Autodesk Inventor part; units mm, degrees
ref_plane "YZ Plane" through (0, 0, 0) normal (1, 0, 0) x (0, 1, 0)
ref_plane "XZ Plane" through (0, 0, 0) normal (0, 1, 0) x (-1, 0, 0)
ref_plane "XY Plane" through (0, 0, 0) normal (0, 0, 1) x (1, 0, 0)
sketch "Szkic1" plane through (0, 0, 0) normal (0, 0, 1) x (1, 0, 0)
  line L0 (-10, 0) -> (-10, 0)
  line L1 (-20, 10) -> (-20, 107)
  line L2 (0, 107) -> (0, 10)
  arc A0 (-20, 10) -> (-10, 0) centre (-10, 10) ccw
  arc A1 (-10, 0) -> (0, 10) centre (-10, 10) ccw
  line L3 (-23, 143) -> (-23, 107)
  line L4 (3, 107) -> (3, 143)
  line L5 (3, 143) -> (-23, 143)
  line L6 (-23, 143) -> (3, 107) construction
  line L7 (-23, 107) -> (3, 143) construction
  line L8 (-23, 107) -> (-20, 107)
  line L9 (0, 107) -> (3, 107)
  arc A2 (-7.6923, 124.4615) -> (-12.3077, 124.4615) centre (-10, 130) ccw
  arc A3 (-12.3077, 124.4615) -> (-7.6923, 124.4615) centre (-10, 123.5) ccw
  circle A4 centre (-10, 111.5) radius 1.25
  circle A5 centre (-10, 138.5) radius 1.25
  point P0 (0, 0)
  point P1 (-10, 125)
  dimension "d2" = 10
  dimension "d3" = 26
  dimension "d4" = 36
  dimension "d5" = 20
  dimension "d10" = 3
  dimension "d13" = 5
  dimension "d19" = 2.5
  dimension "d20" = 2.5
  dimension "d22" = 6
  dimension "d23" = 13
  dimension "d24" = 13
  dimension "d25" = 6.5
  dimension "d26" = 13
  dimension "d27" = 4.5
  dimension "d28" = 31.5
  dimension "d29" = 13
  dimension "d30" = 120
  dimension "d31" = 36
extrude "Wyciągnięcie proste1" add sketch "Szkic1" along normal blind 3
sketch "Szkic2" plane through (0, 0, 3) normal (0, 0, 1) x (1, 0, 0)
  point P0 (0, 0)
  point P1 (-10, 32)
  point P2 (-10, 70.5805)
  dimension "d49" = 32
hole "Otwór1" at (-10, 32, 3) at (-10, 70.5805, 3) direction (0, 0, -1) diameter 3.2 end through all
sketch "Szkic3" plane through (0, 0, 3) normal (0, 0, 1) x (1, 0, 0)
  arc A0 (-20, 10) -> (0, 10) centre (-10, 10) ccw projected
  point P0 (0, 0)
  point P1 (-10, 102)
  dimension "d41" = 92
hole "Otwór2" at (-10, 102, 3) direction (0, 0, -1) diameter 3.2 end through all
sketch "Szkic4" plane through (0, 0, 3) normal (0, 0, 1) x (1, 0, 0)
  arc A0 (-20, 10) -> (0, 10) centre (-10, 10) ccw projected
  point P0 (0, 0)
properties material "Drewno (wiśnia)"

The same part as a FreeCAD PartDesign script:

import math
import FreeCAD as App
import Part
import Sketcher
from FreeCAD import Vector

doc = App.newDocument("Part")
body = doc.addObject("PartDesign::Body", "Body")

# Sketch on XY plane
sketch1 = body.newObject("Sketcher::SketchObject", "Sketch")
sketch1.AttachmentSupport = (doc.getObject("XY_Plane"), [""])
sketch1.MapMode = "FlatFace"
sketch1.addGeometry([
    Part.LineSegment(Vector(-20, 107, 0), Vector(-20, 10, 0)),  # 0
    Part.ArcOfCircle(Part.Circle(Vector(-10, 10, 0), Vector(0, 0, 1), 10), math.radians(180), math.radians(360)),  # 1
    Part.LineSegment(Vector(0, 10, 0), Vector(0, 107, 0)),  # 2
    Part.LineSegment(Vector(0, 107, 0), Vector(3, 107, 0)),  # 3
    Part.LineSegment(Vector(3, 107, 0), Vector(3, 143, 0)),  # 4
    Part.LineSegment(Vector(3, 143, 0), Vector(-23, 143, 0)),  # 5
    Part.LineSegment(Vector(-23, 143, 0), Vector(-23, 107, 0)),  # 6
    Part.LineSegment(Vector(-23, 107, 0), Vector(-20, 107, 0)),  # 7
    Part.Circle(Vector(-10, 111.5, 0), Vector(0, 0, 1), 1.25),  # 8
    Part.ArcOfCircle(Part.Circle(Vector(-10, 130, 0), Vector(0, 0, 1), 6.000038), math.radians(-67.380209), math.radians(247.380209)),  # 9
    Part.ArcOfCircle(Part.Circle(Vector(-10, 123.5, 0), Vector(0, 0, 1), 2.499992), math.radians(157.381017), math.radians(382.618983)),  # 10
    Part.Circle(Vector(-10, 138.5, 0), Vector(0, 0, 1), 1.25),  # 11
], False)
sketch1.addConstraint([
    Sketcher.Constraint("Tangent", 0, 2, 1, 1),
    Sketcher.Constraint("Tangent", 1, 2, 2, 1),
    Sketcher.Constraint("Coincident", 2, 2, 3, 1),
    Sketcher.Constraint("Coincident", 3, 2, 4, 1),
    Sketcher.Constraint("Coincident", 4, 2, 5, 1),
    Sketcher.Constraint("Coincident", 5, 2, 6, 1),
    Sketcher.Constraint("Coincident", 6, 2, 7, 1),
    Sketcher.Constraint("Coincident", 7, 2, 0, 1),
    Sketcher.Constraint("Coincident", 9, 1, 10, 2),
    Sketcher.Constraint("Coincident", 10, 1, 9, 2),
    Sketcher.Constraint("Vertical", 0),
    Sketcher.Constraint("Vertical", 2),
    Sketcher.Constraint("Horizontal", 3),
    Sketcher.Constraint("Vertical", 4),
    Sketcher.Constraint("Horizontal", 5),
    Sketcher.Constraint("Vertical", 6),
    Sketcher.Constraint("Horizontal", 7),
    Sketcher.Constraint("Equal", 8, 11),
    Sketcher.Constraint("PointOnObject", 1, 2, -2),
    Sketcher.Constraint("Horizontal", 3, 2, 6, 2),
    Sketcher.Constraint("Horizontal", 9, 1, 10, 1),
    Sketcher.Constraint("Vertical", 1, 3, 8, 3),
    Sketcher.Constraint("Vertical", 8, 3, 9, 3),
    Sketcher.Constraint("Vertical", 10, 3, 11, 3),
    Sketcher.Constraint("Equal", 3, 7),
    Sketcher.Constraint("Radius", 1, 10.0),
    Sketcher.Constraint("Radius", 9, 6.0),
    Sketcher.Constraint("Diameter", 8, 2.5),
    Sketcher.Constraint("Radius", 10, 2.5),
    Sketcher.Constraint("DistanceX", 3, 1, 3, 2, 3.0),
    Sketcher.Constraint("DistanceY", 4, 1, 4, 2, 36.0),
    Sketcher.Constraint("DistanceY", -1, 1, 1, 3, 10.0),
    Sketcher.Constraint("DistanceY", 1, 3, 9, 3, 120.0),
    Sketcher.Constraint("DistanceY", 9, 3, 4, 2, 13.0),
    Sketcher.Constraint("DistanceY", 10, 3, 9, 3, 6.5),
    Sketcher.Constraint("DistanceY", 2, 2, 8, 3, 4.5),
    Sketcher.Constraint("DistanceY", 2, 2, 11, 3, 31.5),
])
pad1 = body.newObject("PartDesign::Pad", "Pad")
pad1.Profile = sketch1
pad1.Length = 3

# Sketch on XY plane
sketch2 = body.newObject("Sketcher::SketchObject", "Sketch001")
sketch2.AttachmentSupport = (doc.getObject("XY_Plane"), [""])
sketch2.MapMode = "FlatFace"
sketch2.AttachmentOffset = App.Placement(Vector(0, 0, 3), App.Rotation())
sketch2.addGeometry([
    Part.Circle(Vector(-10, 32, 0), Vector(0, 0, 1), 1.6),
    Part.Circle(Vector(-10, 70.5805, 0), Vector(0, 0, 1), 1.6),
], False)
sketch2.addConstraint([
    Sketcher.Constraint("Equal", 0, 1),
    Sketcher.Constraint("Vertical", 0, 3, 1, 3),
    Sketcher.Constraint("Diameter", 0, 3.2),
    Sketcher.Constraint("DistanceX", 0, 3, -1, 1, 10.0),
    Sketcher.Constraint("DistanceY", -1, 1, 0, 3, 32.0),
    Sketcher.Constraint("DistanceY", -1, 1, 1, 3, 70.5805),
])
doc.recompute()
hole = body.newObject("PartDesign::Hole", "Hole")
hole.Profile = sketch2
hole.ThreadType = "None"
hole.Diameter = 3.2
hole.DepthType = "ThroughAll"

# Sketch on XY plane
sketch3 = body.newObject("Sketcher::SketchObject", "Sketch002")
sketch3.AttachmentSupport = (doc.getObject("XY_Plane"), [""])
sketch3.MapMode = "FlatFace"
sketch3.AttachmentOffset = App.Placement(Vector(0, 0, 3), App.Rotation())
sketch3.addGeometry(Part.Circle(Vector(-10, 102, 0), Vector(0, 0, 1), 1.6), False)
sketch3.addConstraint([
    Sketcher.Constraint("Diameter", 0, 3.2),
    Sketcher.Constraint("DistanceX", 0, 3, -1, 1, 10.0),
    Sketcher.Constraint("DistanceY", -1, 1, 0, 3, 102.0),
])
doc.recompute()
hole2 = body.newObject("PartDesign::Hole", "Hole001")
hole2.Profile = sketch3
hole2.ThreadType = "None"
hole2.Diameter = 3.2
hole2.DepthType = "ThroughAll"

doc.recompute()
